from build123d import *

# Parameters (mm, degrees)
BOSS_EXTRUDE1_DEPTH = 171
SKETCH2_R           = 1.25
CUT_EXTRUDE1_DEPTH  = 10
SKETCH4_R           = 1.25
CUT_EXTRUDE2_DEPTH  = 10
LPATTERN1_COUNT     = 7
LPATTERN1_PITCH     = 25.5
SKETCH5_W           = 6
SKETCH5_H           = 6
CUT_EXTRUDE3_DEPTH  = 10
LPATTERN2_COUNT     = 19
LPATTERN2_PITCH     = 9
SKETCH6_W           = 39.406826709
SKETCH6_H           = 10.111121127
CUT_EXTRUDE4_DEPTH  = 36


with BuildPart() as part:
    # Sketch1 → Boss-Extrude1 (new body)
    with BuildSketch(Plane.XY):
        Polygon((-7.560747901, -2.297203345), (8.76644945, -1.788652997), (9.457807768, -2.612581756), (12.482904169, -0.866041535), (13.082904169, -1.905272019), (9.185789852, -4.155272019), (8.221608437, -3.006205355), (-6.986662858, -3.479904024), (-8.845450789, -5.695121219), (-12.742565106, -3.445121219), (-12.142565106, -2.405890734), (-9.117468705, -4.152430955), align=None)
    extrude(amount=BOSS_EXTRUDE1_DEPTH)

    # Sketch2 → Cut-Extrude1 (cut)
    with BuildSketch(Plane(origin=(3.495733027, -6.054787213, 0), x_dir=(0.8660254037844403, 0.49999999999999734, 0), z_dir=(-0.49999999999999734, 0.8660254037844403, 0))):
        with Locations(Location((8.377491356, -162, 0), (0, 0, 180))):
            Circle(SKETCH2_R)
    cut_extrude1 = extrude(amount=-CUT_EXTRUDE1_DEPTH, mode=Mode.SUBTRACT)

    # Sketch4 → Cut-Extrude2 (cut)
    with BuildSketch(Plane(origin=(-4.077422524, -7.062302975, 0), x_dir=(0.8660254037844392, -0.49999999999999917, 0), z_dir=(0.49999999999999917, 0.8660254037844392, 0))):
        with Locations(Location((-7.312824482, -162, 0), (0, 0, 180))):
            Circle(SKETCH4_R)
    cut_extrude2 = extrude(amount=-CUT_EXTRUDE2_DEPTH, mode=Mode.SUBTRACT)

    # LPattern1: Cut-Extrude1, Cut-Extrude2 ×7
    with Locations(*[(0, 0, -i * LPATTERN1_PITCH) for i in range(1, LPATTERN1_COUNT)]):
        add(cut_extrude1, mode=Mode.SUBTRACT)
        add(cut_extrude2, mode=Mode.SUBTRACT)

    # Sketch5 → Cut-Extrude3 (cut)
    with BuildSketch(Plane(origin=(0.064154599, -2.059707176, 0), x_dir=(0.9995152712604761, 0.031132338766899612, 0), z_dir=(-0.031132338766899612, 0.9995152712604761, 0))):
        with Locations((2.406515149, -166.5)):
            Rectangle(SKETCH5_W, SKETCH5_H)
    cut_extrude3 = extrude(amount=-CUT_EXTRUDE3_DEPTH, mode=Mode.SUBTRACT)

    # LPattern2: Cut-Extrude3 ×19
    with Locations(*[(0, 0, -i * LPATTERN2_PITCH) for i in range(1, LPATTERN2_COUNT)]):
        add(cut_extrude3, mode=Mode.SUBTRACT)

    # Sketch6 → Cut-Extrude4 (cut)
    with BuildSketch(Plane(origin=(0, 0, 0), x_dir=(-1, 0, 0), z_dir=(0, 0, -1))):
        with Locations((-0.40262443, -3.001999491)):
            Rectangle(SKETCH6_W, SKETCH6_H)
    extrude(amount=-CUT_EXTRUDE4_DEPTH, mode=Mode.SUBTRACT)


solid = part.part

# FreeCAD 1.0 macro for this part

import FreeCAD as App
import Part
import Sketcher

V = App.Vector
Q = App.Units.Quantity


def add_polygon(sketch, points):
    """Adds a closed chain of lines whose ends are joined by coincident constraints."""
    first, n = sketch.GeometryCount, len(points)
    for a, b in zip(points, points[1:] + points[:1]):
        sketch.addGeometry(Part.LineSegment(App.Vector(*a, 0), App.Vector(*b, 0)), False)
    for i in range(n):
        sketch.addConstraint(Sketcher.Constraint("Coincident", first + i, 2, first + (i + 1) % n, 1))

doc = App.newDocument("Part")
body = doc.addObject("PartDesign::Body", "Body")

sketch1 = body.newObject("Sketcher::SketchObject", "Sketch")
sketch1.AttachmentSupport = (doc.getObject("XY_Plane"), [""])
sketch1.MapMode = "FlatFace"
add_polygon(sketch1, [(8.766449, -1.788653), (-7.560748, -2.297203), (-9.117469, -4.152431), (-12.142565, -2.405891), (-12.742565, -3.445121), (-8.845451, -5.695121), (-6.986663, -3.479904), (8.221608, -3.006205), (9.18579, -4.155272), (13.082904, -1.905272), (12.482904, -0.866042), (9.457808, -2.612582)])
sketch1.addConstraint(Sketcher.Constraint("Perpendicular", 2, 3))
sketch1.addConstraint(Sketcher.Constraint("Perpendicular", 3, 4))
sketch1.addConstraint(Sketcher.Constraint("Parallel", 1, 5))
sketch1.addConstraint(Sketcher.Constraint("Parallel", 0, 6))
sketch1.addConstraint(Sketcher.Constraint("Perpendicular", 8, 9))
sketch1.addConstraint(Sketcher.Constraint("Perpendicular", 9, 10))
sketch1.addConstraint(Sketcher.Constraint("Parallel", 7, 11))
sketch1.addConstraint(Sketcher.Constraint("Equal", 4, 8))
sketch1.addConstraint(Sketcher.Constraint("Equal", 3, 9))
sketch1.addConstraint(Sketcher.Constraint("Equal", 2, 10))
sketch1.addConstraint(Sketcher.Constraint("Angle", 1, Q("-130 deg")))
sketch1.addConstraint(Sketcher.Constraint("Angle", 2, Q("150 deg")))
sketch1.addConstraint(Sketcher.Constraint("Angle", 7, Q("-50 deg")))
sketch1.addConstraint(Sketcher.Constraint("Angle", 8, Q("30 deg")))
sketch1.addConstraint(Sketcher.Constraint("Distance", 3, Q("1.2 mm")))
sketch1.addConstraint(Sketcher.Constraint("Distance", 4, Q("4.5 mm")))
sketch1.addConstraint(Sketcher.Constraint("Distance", 7, Q("1.5 mm")))
sketch1.addConstraint(Sketcher.Constraint("DistanceY", 5, 2, 0, 2, Q("1.182701 mm")))
sketch1.addConstraint(Sketcher.Constraint("DistanceY", 5, 2, 6, 2, Q("0.473699 mm")))
sketch1.addConstraint(Sketcher.Constraint("DistanceX", 6, 2, 10, 2, Q("1.236199 mm")))
sketch1.addConstraint(Sketcher.Constraint("Distance", 5, Q("2.891761 mm")))
sketch1.addConstraint(Sketcher.Constraint("DistanceX", 1, 2, -1, 1, Q("9.117469 mm")))
sketch1.addConstraint(Sketcher.Constraint("DistanceY", 1, 2, -1, 1, Q("4.152431 mm")))
sketch1.addConstraint(Sketcher.Constraint("DistanceX", -1, 1, 6, 2, Q("8.221608 mm")))
pad1 = body.newObject("PartDesign::Pad", "Pad")
pad1.Profile = sketch1
pad1.Length = 171

sketch2 = body.newObject("Sketcher::SketchObject", "Sketch001")
sketch2.Placement = App.Placement(V(3.495733, -6.054787, 0), App.Rotation(V(0.866025404, 0.5, 0), V(0, 0, -1), V(-0.5, 0.866025404, 0), "ZXY"))
sketch2.addGeometry(Part.Circle(V(8.377491, -162, 0), V(0, 0, 1), 1.25), False)
sketch2.addConstraint(Sketcher.Constraint("Diameter", 0, Q("2.5 mm")))
sketch2.addConstraint(Sketcher.Constraint("DistanceY", 0, 3, -1, 1, Q("162 mm")))
sketch2.addConstraint(Sketcher.Constraint("DistanceX", -1, 1, 0, 3, Q("8.377491 mm")))
pocket1 = body.newObject("PartDesign::Pocket", "Pocket")
pocket1.Profile = sketch2
pocket1.Length = 10

sketch3 = body.newObject("Sketcher::SketchObject", "Sketch002")
sketch3.Placement = App.Placement(V(-4.077423, -7.062303, 0), App.Rotation(V(0.866025404, -0.5, 0), V(0, 0, -1), V(0.5, 0.866025404, 0), "ZXY"))
sketch3.addGeometry(Part.Circle(V(-7.312824, -162, 0), V(0, 0, 1), 1.25), False)
sketch3.addConstraint(Sketcher.Constraint("Diameter", 0, Q("2.5 mm")))
sketch3.addConstraint(Sketcher.Constraint("DistanceY", 0, 3, -1, 1, Q("162 mm")))
sketch3.addConstraint(Sketcher.Constraint("DistanceX", 0, 3, -1, 1, Q("7.312824 mm")))
pocket2 = body.newObject("PartDesign::Pocket", "Pocket001")
pocket2.Profile = sketch3
pocket2.Length = 10
doc.recompute()

linearpattern = body.newObject("PartDesign::LinearPattern", "LinearPattern")
linearpattern.Originals = [pocket1, pocket2]
linearpattern.Direction = (doc.getObject("Z_Axis"), [""])
linearpattern.Mode = "offset"
linearpattern.Offset = 25.5
linearpattern.Occurrences = 7
linearpattern.Reversed = True
body.Tip = linearpattern

sketch4 = body.newObject("Sketcher::SketchObject", "Sketch003")
sketch4.Placement = App.Placement(V(0.064155, -2.059707, 0), App.Rotation(V(0.999515271, 0.031132339, 0), V(0, 0, -0.999999999), V(-0.031132339, 0.999515271, 0), "ZXY"))
add_polygon(sketch4, [(-0.593485, -163.5), (-0.593485, -169.5), (5.406515, -169.5), (5.406515, -163.5)])
sketch4.addConstraint(Sketcher.Constraint("Vertical", 0))
sketch4.addConstraint(Sketcher.Constraint("Horizontal", 1))
sketch4.addConstraint(Sketcher.Constraint("Vertical", 2))
sketch4.addConstraint(Sketcher.Constraint("Horizontal", 3))
sketch4.addConstraint(Sketcher.Constraint("Equal", 3, 0))
sketch4.addConstraint(Sketcher.Constraint("DistanceX", 1, 1, 1, 2, Q("6 mm")))
sketch4.addConstraint(Sketcher.Constraint("DistanceY", 0, 2, -1, 1, Q("169.5 mm")))
sketch4.addConstraint(Sketcher.Constraint("DistanceX", 0, 2, -1, 1, Q("0.593485 mm")))
pocket3 = body.newObject("PartDesign::Pocket", "Pocket002")
pocket3.Profile = sketch4
pocket3.Length = 10
doc.recompute()

linearpattern2 = body.newObject("PartDesign::LinearPattern", "LinearPattern001")
linearpattern2.Originals = [pocket3]
linearpattern2.Direction = (doc.getObject("Z_Axis"), [""])
linearpattern2.Mode = "offset"
linearpattern2.Offset = 9
linearpattern2.Occurrences = 19
linearpattern2.Reversed = True
body.Tip = linearpattern2

sketch5 = body.newObject("Sketcher::SketchObject", "Sketch004")
sketch5.AttachmentSupport = (doc.getObject("XY_Plane"), [""])
sketch5.MapMode = "FlatFace"
add_polygon(sketch5, [(20.106038, 2.053561), (20.106038, -8.05756), (-19.300789, -8.05756), (-19.300789, 2.053561)])
sketch5.addConstraint(Sketcher.Constraint("Vertical", 0))
sketch5.addConstraint(Sketcher.Constraint("Horizontal", 1))
sketch5.addConstraint(Sketcher.Constraint("Vertical", 2))
sketch5.addConstraint(Sketcher.Constraint("Horizontal", 3))
sketch5.addConstraint(Sketcher.Constraint("DistanceY", 0, 2, 0, 1, Q("10.111121 mm")))
sketch5.addConstraint(Sketcher.Constraint("DistanceX", 1, 2, 1, 1, Q("39.406827 mm")))
sketch5.addConstraint(Sketcher.Constraint("DistanceY", 0, 2, -1, 1, Q("8.05756 mm")))
sketch5.addConstraint(Sketcher.Constraint("DistanceX", 1, 2, -1, 1, Q("19.300789 mm")))
pocket4 = body.newObject("PartDesign::Pocket", "Pocket003")
pocket4.Profile = sketch5
pocket4.Length = 36
pocket4.Reversed = True

doc.recompute()
